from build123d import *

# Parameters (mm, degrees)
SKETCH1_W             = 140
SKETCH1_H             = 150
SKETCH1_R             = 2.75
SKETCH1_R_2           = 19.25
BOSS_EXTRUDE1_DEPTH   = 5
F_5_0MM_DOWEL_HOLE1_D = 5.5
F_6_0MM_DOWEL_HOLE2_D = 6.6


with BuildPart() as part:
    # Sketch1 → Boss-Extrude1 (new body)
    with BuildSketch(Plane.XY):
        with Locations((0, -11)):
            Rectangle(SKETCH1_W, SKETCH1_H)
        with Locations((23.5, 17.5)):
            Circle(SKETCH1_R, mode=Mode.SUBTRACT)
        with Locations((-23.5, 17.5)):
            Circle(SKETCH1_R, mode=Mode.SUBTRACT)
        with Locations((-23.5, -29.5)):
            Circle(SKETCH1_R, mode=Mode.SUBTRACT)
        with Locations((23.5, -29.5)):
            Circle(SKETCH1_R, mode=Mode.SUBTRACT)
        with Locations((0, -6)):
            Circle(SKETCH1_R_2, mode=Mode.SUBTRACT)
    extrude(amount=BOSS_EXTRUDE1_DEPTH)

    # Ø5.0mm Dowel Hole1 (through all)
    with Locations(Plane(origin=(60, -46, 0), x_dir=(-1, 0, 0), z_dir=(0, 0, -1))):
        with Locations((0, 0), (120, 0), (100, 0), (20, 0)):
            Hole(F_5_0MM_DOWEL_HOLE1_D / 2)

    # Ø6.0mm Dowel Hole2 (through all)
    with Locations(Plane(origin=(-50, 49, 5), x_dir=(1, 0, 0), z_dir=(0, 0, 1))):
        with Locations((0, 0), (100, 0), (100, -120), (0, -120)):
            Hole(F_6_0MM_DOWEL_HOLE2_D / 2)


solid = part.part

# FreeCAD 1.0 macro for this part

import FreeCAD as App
import Part
import Sketcher
from FreeCAD import Vector
Q = App.Units.Quantity

doc = App.newDocument("Part")
body = doc.addObject("PartDesign::Body", "Body")

# Sketch on XY plane
sketch1 = body.newObject("Sketcher::SketchObject", "Sketch")
sketch1.AttachmentSupport = (doc.getObject("XY_Plane"), [""])
sketch1.MapMode = "FlatFace"
sketch1.addGeometry(Part.LineSegment(Vector(-70, 64, 0), Vector(-70, -86, 0)), False)
sketch1.addGeometry(Part.LineSegment(Vector(-70, -86, 0), Vector(70, -86, 0)), False)
sketch1.addGeometry(Part.LineSegment(Vector(70, -86, 0), Vector(70, 64, 0)), False)
sketch1.addGeometry(Part.LineSegment(Vector(70, 64, 0), Vector(-70, 64, 0)), False)
sketch1.addGeometry(Part.Circle(Vector(-23.5, -29.5, 0), Vector(0, 0, 1), 2.8), False)
sketch1.addGeometry(Part.Circle(Vector(23.5, -29.5, 0), Vector(0, 0, 1), 2.8), False)
sketch1.addGeometry(Part.Circle(Vector(-23.5, 17.5, 0), Vector(0, 0, 1), 2.8), False)
sketch1.addGeometry(Part.Circle(Vector(0, -6, 0), Vector(0, 0, 1), 19.2), False)
sketch1.addGeometry(Part.Circle(Vector(23.5, 17.5, 0), Vector(0, 0, 1), 2.8), False)
sketch1.addConstraint(Sketcher.Constraint("Coincident", 0, 2, 1, 1))
sketch1.addConstraint(Sketcher.Constraint("Coincident", 1, 2, 2, 1))
sketch1.addConstraint(Sketcher.Constraint("Coincident", 2, 2, 3, 1))
sketch1.addConstraint(Sketcher.Constraint("Coincident", 3, 2, 0, 1))
sketch1.addConstraint(Sketcher.Constraint("Vertical", 0))
sketch1.addConstraint(Sketcher.Constraint("Horizontal", 1))
sketch1.addConstraint(Sketcher.Constraint("Vertical", 2))
sketch1.addConstraint(Sketcher.Constraint("Horizontal", 3))
sketch1.addConstraint(Sketcher.Constraint("Equal", 4, 5))
sketch1.addConstraint(Sketcher.Constraint("Equal", 5, 6))
sketch1.addConstraint(Sketcher.Constraint("Equal", 6, 8))
sketch1.addConstraint(Sketcher.Constraint("Symmetric", 4, 3, 5, 3, -2))
sketch1.addConstraint(Sketcher.Constraint("Symmetric", 6, 3, 8, 3, -2))
sketch1.addConstraint(Sketcher.Constraint("PointOnObject", 7, 3, -2))
sketch1.addConstraint(Sketcher.Constraint("Vertical", 4, 3, 6, 3))
sketch1.addConstraint(Sketcher.Constraint("Diameter", 4, Q("5.5 mm")))
sketch1.addConstraint(Sketcher.Constraint("Diameter", 7, Q("38.5 mm")))
sketch1.addConstraint(Sketcher.Constraint("DistanceX", 1, 1, 1, 2, Q("140 mm")))
sketch1.addConstraint(Sketcher.Constraint("DistanceY", 0, 2, 0, 1, Q("150 mm")))
sketch1.addConstraint(Sketcher.Constraint("DistanceY", 7, 3, -1, 1, Q("6 mm")))
sketch1.addConstraint(Sketcher.Constraint("DistanceX", 0, 2, -1, 1, Q("70 mm")))
sketch1.addConstraint(Sketcher.Constraint("DistanceY", 0, 2, -1, 1, Q("86 mm")))
sketch1.addConstraint(Sketcher.Constraint("DistanceX", 4, 3, 5, 3, Q("47 mm")))
sketch1.addConstraint(Sketcher.Constraint("DistanceY", 4, 3, 6, 3, Q("47 mm")))
sketch1.addConstraint(Sketcher.Constraint("DistanceY", 4, 3, -1, 1, Q("29.5 mm")))
pad1 = body.newObject("PartDesign::Pad", "Pad")
pad1.Profile = sketch1
pad1.Length = 5

# Sketch on XY plane
sketch2 = body.newObject("Sketcher::SketchObject", "Sketch001")
sketch2.AttachmentSupport = (doc.getObject("XY_Plane"), [""])
sketch2.MapMode = "FlatFace"
sketch2.addGeometry(Part.Circle(Vector(60, -46, 0), Vector(0, 0, 1), 2.8), False)
sketch2.addGeometry(Part.Circle(Vector(-60, -46, 0), Vector(0, 0, 1), 2.8), False)
sketch2.addGeometry(Part.Circle(Vector(-40, -46, 0), Vector(0, 0, 1), 2.8), False)
sketch2.addGeometry(Part.Circle(Vector(40, -46, 0), Vector(0, 0, 1), 2.8), False)
sketch2.addConstraint(Sketcher.Constraint("Equal", 0, 1))
sketch2.addConstraint(Sketcher.Constraint("Equal", 1, 2))
sketch2.addConstraint(Sketcher.Constraint("Equal", 2, 3))
sketch2.addConstraint(Sketcher.Constraint("Symmetric", 0, 3, 1, 3, -2))
sketch2.addConstraint(Sketcher.Constraint("Symmetric", 2, 3, 3, 3, -2))
sketch2.addConstraint(Sketcher.Constraint("Horizontal", 1, 3, 2, 3))
sketch2.addConstraint(Sketcher.Constraint("Diameter", 0, Q("5.5 mm")))
sketch2.addConstraint(Sketcher.Constraint("DistanceX", -1, 1, 0, 3, Q("60 mm")))
sketch2.addConstraint(Sketcher.Constraint("DistanceY", 0, 3, -1, 1, Q("46 mm")))
sketch2.addConstraint(Sketcher.Constraint("DistanceX", 2, 3, -1, 1, Q("40 mm")))
doc.recompute()
hole = body.newObject("PartDesign::Hole", "Hole")
hole.Profile = sketch2
hole.ThreadType = "None"
hole.Diameter = 5.5
hole.DepthType = "ThroughAll"
hole.Reversed = True

# Sketch on XY plane
sketch3 = body.newObject("Sketcher::SketchObject", "Sketch002")
sketch3.AttachmentSupport = (doc.getObject("XY_Plane"), [""])
sketch3.MapMode = "FlatFace"
sketch3.AttachmentOffset = App.Placement(Vector(0, 0, 5), App.Rotation())
sketch3.addGeometry(Part.Circle(Vector(-50, 49, 0), Vector(0, 0, 1), 3.3), False)
sketch3.addGeometry(Part.Circle(Vector(50, 49, 0), Vector(0, 0, 1), 3.3), False)
sketch3.addGeometry(Part.Circle(Vector(50, -71, 0), Vector(0, 0, 1), 3.3), False)
sketch3.addGeometry(Part.Circle(Vector(-50, -71, 0), Vector(0, 0, 1), 3.3), False)
sketch3.addConstraint(Sketcher.Constraint("Equal", 0, 1))
sketch3.addConstraint(Sketcher.Constraint("Equal", 1, 2))
sketch3.addConstraint(Sketcher.Constraint("Equal", 2, 3))
sketch3.addConstraint(Sketcher.Constraint("Symmetric", 0, 3, 1, 3, -2))
sketch3.addConstraint(Sketcher.Constraint("Symmetric", 2, 3, 3, 3, -2))
sketch3.addConstraint(Sketcher.Constraint("Vertical", 1, 3, 2, 3))
sketch3.addConstraint(Sketcher.Constraint("Diameter", 0, Q("6.6 mm")))
sketch3.addConstraint(Sketcher.Constraint("DistanceX", 0, 3, -1, 1, Q("50 mm")))
sketch3.addConstraint(Sketcher.Constraint("DistanceY", -1, 1, 0, 3, Q("49 mm")))
sketch3.addConstraint(Sketcher.Constraint("DistanceY", 2, 3, -1, 1, Q("71 mm")))
doc.recompute()
hole2 = body.newObject("PartDesign::Hole", "Hole001")
hole2.Profile = sketch3
hole2.ThreadType = "None"
hole2.Diameter = 6.6
hole2.DepthType = "ThroughAll"

doc.recompute()
